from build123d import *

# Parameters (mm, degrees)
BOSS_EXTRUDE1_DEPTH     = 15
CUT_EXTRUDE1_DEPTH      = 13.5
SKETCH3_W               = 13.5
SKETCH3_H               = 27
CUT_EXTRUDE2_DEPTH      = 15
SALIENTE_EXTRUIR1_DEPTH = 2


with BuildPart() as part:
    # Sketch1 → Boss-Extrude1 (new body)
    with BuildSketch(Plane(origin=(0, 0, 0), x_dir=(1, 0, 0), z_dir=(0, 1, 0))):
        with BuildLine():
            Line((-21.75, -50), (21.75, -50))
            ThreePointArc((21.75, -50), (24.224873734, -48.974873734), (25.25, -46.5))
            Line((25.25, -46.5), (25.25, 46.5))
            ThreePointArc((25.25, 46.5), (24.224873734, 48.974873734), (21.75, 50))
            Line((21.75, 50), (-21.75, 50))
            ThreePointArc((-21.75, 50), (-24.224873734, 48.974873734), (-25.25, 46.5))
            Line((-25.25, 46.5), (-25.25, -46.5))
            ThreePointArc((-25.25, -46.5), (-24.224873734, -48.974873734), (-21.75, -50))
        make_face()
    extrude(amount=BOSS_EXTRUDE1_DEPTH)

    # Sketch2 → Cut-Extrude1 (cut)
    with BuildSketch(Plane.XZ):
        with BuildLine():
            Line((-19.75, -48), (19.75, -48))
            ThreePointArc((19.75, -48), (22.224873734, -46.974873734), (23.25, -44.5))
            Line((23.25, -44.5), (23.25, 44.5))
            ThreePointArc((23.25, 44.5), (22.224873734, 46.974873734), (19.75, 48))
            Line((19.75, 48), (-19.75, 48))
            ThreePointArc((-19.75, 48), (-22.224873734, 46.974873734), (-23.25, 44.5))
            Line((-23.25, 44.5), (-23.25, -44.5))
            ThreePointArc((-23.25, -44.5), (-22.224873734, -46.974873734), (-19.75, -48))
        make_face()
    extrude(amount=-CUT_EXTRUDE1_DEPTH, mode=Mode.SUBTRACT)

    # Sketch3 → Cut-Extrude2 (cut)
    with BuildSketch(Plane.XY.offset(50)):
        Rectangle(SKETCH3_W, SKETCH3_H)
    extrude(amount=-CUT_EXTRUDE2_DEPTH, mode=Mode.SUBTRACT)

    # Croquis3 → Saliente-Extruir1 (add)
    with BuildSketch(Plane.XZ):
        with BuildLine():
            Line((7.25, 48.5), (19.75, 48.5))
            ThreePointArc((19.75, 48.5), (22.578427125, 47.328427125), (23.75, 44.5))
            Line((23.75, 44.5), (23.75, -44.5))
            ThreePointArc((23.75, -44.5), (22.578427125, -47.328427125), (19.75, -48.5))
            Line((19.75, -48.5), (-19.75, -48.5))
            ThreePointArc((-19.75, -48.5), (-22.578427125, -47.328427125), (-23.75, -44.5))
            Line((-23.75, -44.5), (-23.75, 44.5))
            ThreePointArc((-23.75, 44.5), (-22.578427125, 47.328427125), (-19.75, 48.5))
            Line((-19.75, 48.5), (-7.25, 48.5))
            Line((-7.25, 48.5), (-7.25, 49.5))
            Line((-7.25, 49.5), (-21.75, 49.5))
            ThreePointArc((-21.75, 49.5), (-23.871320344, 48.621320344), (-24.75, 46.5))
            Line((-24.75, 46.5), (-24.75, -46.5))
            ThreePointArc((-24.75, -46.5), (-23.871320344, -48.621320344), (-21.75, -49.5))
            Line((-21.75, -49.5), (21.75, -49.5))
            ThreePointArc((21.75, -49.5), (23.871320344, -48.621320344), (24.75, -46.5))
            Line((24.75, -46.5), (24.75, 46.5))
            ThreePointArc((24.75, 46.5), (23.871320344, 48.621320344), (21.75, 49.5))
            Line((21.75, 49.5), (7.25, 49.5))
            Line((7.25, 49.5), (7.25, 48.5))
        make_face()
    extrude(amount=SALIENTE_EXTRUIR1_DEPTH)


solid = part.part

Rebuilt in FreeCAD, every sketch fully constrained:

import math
import FreeCAD as App
import Part
import Sketcher
from FreeCAD import Vector
Q = App.Units.Quantity


def add_polygon(sketch, points):
    """Adds a closed chain of lines whose ends are joined by coincident constraints."""
    first, n = sketch.GeometryCount, len(points)
    for a, b in zip(points, points[1:] + points[:1]):
        sketch.addGeometry(Part.LineSegment(App.Vector(*a, 0), App.Vector(*b, 0)), False)
    for i in range(n):
        sketch.addConstraint(Sketcher.Constraint("Coincident", first + i, 2, first + (i + 1) % n, 1))

doc = App.newDocument("Part")
params = doc.addObject("Spreadsheet::Sheet", "Params")
for row, (alias, value) in enumerate([
    ("sketch1_radius", "3.5 mm"),
    ("sketch1_height", "93 mm"),
    ("sketch1_width", "43.5 mm"),
    ("pad1_length", "15 mm"),
    ("sketch2_radius", "3.5 mm"),
    ("sketch2_height", "89 mm"),
    ("sketch2_width", "39.5 mm"),
    ("pocket1_length", "13.5 mm"),
    ("sketch3_height", "27 mm"),
    ("sketch3_width", "13.5 mm"),
    ("pocket2_length", "15 mm"),
    ("sketch4_radius", "4 mm"),
    ("sketch4_radius2", "3 mm"),
    ("sketch4_height", "89 mm"),
    ("sketch4_height2", "1 mm"),
    ("sketch4_width", "12.5 mm"),
    ("pad2_length", "2 mm"),
], start=1):
    params.set(f"A{row}", alias)
    params.set(f"B{row}", "=" + value)
    params.setAlias(f"B{row}", alias)

body = doc.addObject("PartDesign::Body", "Body")

sketch1 = doc.addObject("Sketcher::SketchObject", "Sketch")
body.addObject(sketch1)
sketch1.AttachmentSupport = (doc.XZ_Plane, [""])
sketch1.MapMode = "FlatFace"
sketch1.addGeometry(Part.LineSegment(Vector(-21.8, 50, 0), Vector(21.8, 50, 0)), False)
sketch1.addGeometry(Part.ArcOfCircle(Part.Circle(Vector(21.7, 46.5, 0), Vector(0, 0, 1), 3.5), math.radians(0), math.radians(90)), False)
sketch1.addGeometry(Part.LineSegment(Vector(25.2, 46.5, 0), Vector(25.2, -46.5, 0)), False)
sketch1.addGeometry(Part.ArcOfCircle(Part.Circle(Vector(21.7, -46.5, 0), Vector(0, 0, 1), 3.5), math.radians(-90), math.radians(0)), False)
sketch1.addGeometry(Part.LineSegment(Vector(21.8, -50, 0), Vector(-21.8, -50, 0)), False)
sketch1.addGeometry(Part.ArcOfCircle(Part.Circle(Vector(-21.7, -46.5, 0), Vector(0, 0, 1), 3.5), math.radians(-180), math.radians(-90)), False)
sketch1.addGeometry(Part.LineSegment(Vector(-25.2, -46.5, 0), Vector(-25.2, 46.5, 0)), False)
sketch1.addGeometry(Part.ArcOfCircle(Part.Circle(Vector(-21.7, 46.5, 0), Vector(0, 0, 1), 3.5), math.radians(90), math.radians(180)), False)
sketch1.addConstraint(Sketcher.Constraint("Tangent", 0, 2, 1, 2))
sketch1.addConstraint(Sketcher.Constraint("Tangent", 1, 1, 2, 1))
sketch1.addConstraint(Sketcher.Constraint("Tangent", 2, 2, 3, 2))
sketch1.addConstraint(Sketcher.Constraint("Tangent", 3, 1, 4, 1))
sketch1.addConstraint(Sketcher.Constraint("Tangent", 4, 2, 5, 2))
sketch1.addConstraint(Sketcher.Constraint("Tangent", 5, 1, 6, 1))
sketch1.addConstraint(Sketcher.Constraint("Tangent", 6, 2, 7, 2))
sketch1.addConstraint(Sketcher.Constraint("Tangent", 7, 1, 0, 1))
sketch1.addConstraint(Sketcher.Constraint("Horizontal", 0))
sketch1.addConstraint(Sketcher.Constraint("Vertical", 2))
sketch1.addConstraint(Sketcher.Constraint("Horizontal", 4))
sketch1.addConstraint(Sketcher.Constraint("Vertical", 6))
sketch1.addConstraint(Sketcher.Constraint("Equal", 1, 3))
sketch1.addConstraint(Sketcher.Constraint("Equal", 3, 5))
sketch1.addConstraint(Sketcher.Constraint("Equal", 5, 7))
sketch1.addConstraint(Sketcher.Constraint("Symmetric", 1, 3, 5, 3, -1, 1))
sketch1.addConstraint(Sketcher.Constraint("Radius", 1, Q("3.5 mm")))
sketch1.addConstraint(Sketcher.Constraint("DistanceY", 2, 2, 2, 1, Q("93 mm")))
sketch1.addConstraint(Sketcher.Constraint("DistanceX", 0, 1, 0, 2, Q("43.5 mm")))
sketch1.setExpression("Constraints[16]", "Params.sketch1_radius")
sketch1.setExpression("Constraints[17]", "Params.sketch1_height")
sketch1.setExpression("Constraints[18]", "Params.sketch1_width")
pad1 = doc.addObject("PartDesign::Pad", "Pad")
body.addObject(pad1)
pad1.Profile = sketch1
pad1.setExpression("Length", "Params.pad1_length")
pad1.Reversed = True

sketch2 = doc.addObject("Sketcher::SketchObject", "Sketch001")
body.addObject(sketch2)
sketch2.AttachmentSupport = (doc.XZ_Plane, [""])
sketch2.MapMode = "FlatFace"
sketch2.addGeometry(Part.LineSegment(Vector(-19.8, -48, 0), Vector(19.8, -48, 0)), False)
sketch2.addGeometry(Part.ArcOfCircle(Part.Circle(Vector(19.7, -44.5, 0), Vector(0, 0, 1), 3.5), math.radians(-90), math.radians(0)), False)
sketch2.addGeometry(Part.LineSegment(Vector(23.2, -44.5, 0), Vector(23.2, 44.5, 0)), False)
sketch2.addGeometry(Part.ArcOfCircle(Part.Circle(Vector(19.7, 44.5, 0), Vector(0, 0, 1), 3.5), math.radians(0), math.radians(90)), False)
sketch2.addGeometry(Part.LineSegment(Vector(19.8, 48, 0), Vector(-19.8, 48, 0)), False)
sketch2.addGeometry(Part.ArcOfCircle(Part.Circle(Vector(-19.7, 44.5, 0), Vector(0, 0, 1), 3.5), math.radians(90), math.radians(180)), False)
sketch2.addGeometry(Part.LineSegment(Vector(-23.2, 44.5, 0), Vector(-23.2, -44.5, 0)), False)
sketch2.addGeometry(Part.ArcOfCircle(Part.Circle(Vector(-19.7, -44.5, 0), Vector(0, 0, 1), 3.5), math.radians(-180), math.radians(-90)), False)
sketch2.addConstraint(Sketcher.Constraint("Tangent", 0, 2, 1, 1))
sketch2.addConstraint(Sketcher.Constraint("Tangent", 1, 2, 2, 1))
sketch2.addConstraint(Sketcher.Constraint("Tangent", 2, 2, 3, 1))
sketch2.addConstraint(Sketcher.Constraint("Tangent", 3, 2, 4, 1))
sketch2.addConstraint(Sketcher.Constraint("Tangent", 4, 2, 5, 1))
sketch2.addConstraint(Sketcher.Constraint("Tangent", 5, 2, 6, 1))
sketch2.addConstraint(Sketcher.Constraint("Tangent", 6, 2, 7, 1))
sketch2.addConstraint(Sketcher.Constraint("Tangent", 7, 2, 0, 1))
sketch2.addConstraint(Sketcher.Constraint("Horizontal", 0))
sketch2.addConstraint(Sketcher.Constraint("Vertical", 2))
sketch2.addConstraint(Sketcher.Constraint("Horizontal", 4))
sketch2.addConstraint(Sketcher.Constraint("Vertical", 6))
sketch2.addConstraint(Sketcher.Constraint("Equal", 1, 3))
sketch2.addConstraint(Sketcher.Constraint("Equal", 3, 5))
sketch2.addConstraint(Sketcher.Constraint("Equal", 5, 7))
sketch2.addConstraint(Sketcher.Constraint("Symmetric", 1, 3, 5, 3, -1, 1))
sketch2.addConstraint(Sketcher.Constraint("Radius", 1, Q("3.5 mm")))
sketch2.addConstraint(Sketcher.Constraint("DistanceY", 2, 1, 2, 2, Q("89 mm")))
sketch2.addConstraint(Sketcher.Constraint("DistanceX", 0, 1, 0, 2, Q("39.5 mm")))
sketch2.setExpression("Constraints[16]", "Params.sketch2_radius")
sketch2.setExpression("Constraints[17]", "Params.sketch2_height")
sketch2.setExpression("Constraints[18]", "Params.sketch2_width")
pocket1 = doc.addObject("PartDesign::Pocket", "Pocket")
body.addObject(pocket1)
pocket1.Profile = sketch2
pocket1.setExpression("Length", "Params.pocket1_length")

sketch3 = doc.addObject("Sketcher::SketchObject", "Sketch002")
body.addObject(sketch3)
sketch3.AttachmentSupport = (doc.XY_Plane, [""])
sketch3.MapMode = "FlatFace"
sketch3.AttachmentOffset = App.Placement(Vector(0, 0, 50), App.Rotation())
add_polygon(sketch3, [(-7, 14), (-7, -14), (7, -14), (7, 14)])
sketch3.addConstraint(Sketcher.Constraint("Vertical", 0))
sketch3.addConstraint(Sketcher.Constraint("Horizontal", 1))
sketch3.addConstraint(Sketcher.Constraint("Vertical", 2))
sketch3.addConstraint(Sketcher.Constraint("Horizontal", 3))
sketch3.addConstraint(Sketcher.Constraint("Symmetric", 0, 2, 2, 2, -1, 1))
sketch3.addConstraint(Sketcher.Constraint("DistanceY", 0, 2, 0, 1, Q("27 mm")))
sketch3.addConstraint(Sketcher.Constraint("DistanceX", 1, 1, 1, 2, Q("13.5 mm")))
sketch3.setExpression("Constraints[9]", "Params.sketch3_height")
sketch3.setExpression("Constraints[10]", "Params.sketch3_width")
pocket2 = doc.addObject("PartDesign::Pocket", "Pocket001")
body.addObject(pocket2)
pocket2.Profile = sketch3
pocket2.setExpression("Length", "Params.pocket2_length")

sketch4 = doc.addObject("Sketcher::SketchObject", "Sketch003")
body.addObject(sketch4)
sketch4.AttachmentSupport = (doc.XZ_Plane, [""])
sketch4.MapMode = "FlatFace"
sketch4.addGeometry(Part.LineSegment(Vector(7.2, 48.5, 0), Vector(19.8, 48.5, 0)), False)
sketch4.addGeometry(Part.ArcOfCircle(Part.Circle(Vector(19.8, 44.5, 0), Vector(0, 0, 1), 4), math.radians(0), math.radians(90)), False)
sketch4.addGeometry(Part.LineSegment(Vector(23.8, 44.5, 0), Vector(23.8, -44.5, 0)), False)
sketch4.addGeometry(Part.ArcOfCircle(Part.Circle(Vector(19.8, -44.5, 0), Vector(0, 0, 1), 4), math.radians(-90), math.radians(0)), False)
sketch4.addGeometry(Part.LineSegment(Vector(19.8, -48.5, 0), Vector(-19.8, -48.5, 0)), False)
sketch4.addGeometry(Part.ArcOfCircle(Part.Circle(Vector(-19.8, -44.5, 0), Vector(0, 0, 1), 4), math.radians(180), math.radians(270)), False)
sketch4.addGeometry(Part.LineSegment(Vector(-23.8, -44.5, 0), Vector(-23.8, 44.5, 0)), False)
sketch4.addGeometry(Part.ArcOfCircle(Part.Circle(Vector(-19.8, 44.5, 0), Vector(0, 0, 1), 4), math.radians(90), math.radians(180)), False)
sketch4.addGeometry(Part.LineSegment(Vector(-19.8, 48.5, 0), Vector(-7.2, 48.5, 0)), False)
sketch4.addGeometry(Part.LineSegment(Vector(-7.2, 48.5, 0), Vector(-7.2, 49.5, 0)), False)
sketch4.addGeometry(Part.LineSegment(Vector(-7.2, 49.5, 0), Vector(-21.8, 49.5, 0)), False)
sketch4.addGeometry(Part.ArcOfCircle(Part.Circle(Vector(-21.8, 46.5, 0), Vector(0, 0, 1), 3), math.radians(90), math.radians(180)), False)
sketch4.addGeometry(Part.LineSegment(Vector(-24.8, 46.5, 0), Vector(-24.8, -46.5, 0)), False)
sketch4.addGeometry(Part.ArcOfCircle(Part.Circle(Vector(-21.8, -46.5, 0), Vector(0, 0, 1), 3), math.radians(180), math.radians(270)), False)
sketch4.addGeometry(Part.LineSegment(Vector(-21.8, -49.5, 0), Vector(21.8, -49.5, 0)), False)
sketch4.addGeometry(Part.ArcOfCircle(Part.Circle(Vector(21.8, -46.5, 0), Vector(0, 0, 1), 3), math.radians(-90), math.radians(0)), False)
sketch4.addGeometry(Part.LineSegment(Vector(24.8, -46.5, 0), Vector(24.8, 46.5, 0)), False)
sketch4.addGeometry(Part.ArcOfCircle(Part.Circle(Vector(21.8, 46.5, 0), Vector(0, 0, 1), 3), math.radians(0), math.radians(90)), False)
sketch4.addGeometry(Part.LineSegment(Vector(21.8, 49.5, 0), Vector(7.2, 49.5, 0)), False)
sketch4.addGeometry(Part.LineSegment(Vector(7.2, 49.5, 0), Vector(7.2, 48.5, 0)), False)
sketch4.addConstraint(Sketcher.Constraint("Tangent", 0, 2, 1, 2))
sketch4.addConstraint(Sketcher.Constraint("Tangent", 1, 1, 2, 1))
sketch4.addConstraint(Sketcher.Constraint("Tangent", 2, 2, 3, 2))
sketch4.addConstraint(Sketcher.Constraint("Tangent", 3, 1, 4, 1))
sketch4.addConstraint(Sketcher.Constraint("Tangent", 4, 2, 5, 2))
sketch4.addConstraint(Sketcher.Constraint("Tangent", 5, 1, 6, 1))
sketch4.addConstraint(Sketcher.Constraint("Tangent", 6, 2, 7, 2))
sketch4.addConstraint(Sketcher.Constraint("Tangent", 7, 1, 8, 1))
sketch4.addConstraint(Sketcher.Constraint("Coincident", 8, 2, 9, 1))
sketch4.addConstraint(Sketcher.Constraint("Coincident", 9, 2, 10, 1))
sketch4.addConstraint(Sketcher.Constraint("Tangent", 10, 2, 11, 1))
sketch4.addConstraint(Sketcher.Constraint("Tangent", 11, 2, 12, 1))
sketch4.addConstraint(Sketcher.Constraint("Tangent", 12, 2, 13, 1))
sketch4.addConstraint(Sketcher.Constraint("Tangent", 13, 2, 14, 1))
sketch4.addConstraint(Sketcher.Constraint("Tangent", 14, 2, 15, 1))
sketch4.addConstraint(Sketcher.Constraint("Tangent", 15, 2, 16, 1))
sketch4.addConstraint(Sketcher.Constraint("Tangent", 16, 2, 17, 1))
sketch4.addConstraint(Sketcher.Constraint("Tangent", 17, 2, 18, 1))
sketch4.addConstraint(Sketcher.Constraint("Coincident", 18, 2, 19, 1))
sketch4.addConstraint(Sketcher.Constraint("Coincident", 19, 2, 0, 1))
sketch4.addConstraint(Sketcher.Constraint("Horizontal", 0))
sketch4.addConstraint(Sketcher.Constraint("Vertical", 2))
sketch4.addConstraint(Sketcher.Constraint("Horizontal", 4))
sketch4.addConstraint(Sketcher.Constraint("Vertical", 6))
sketch4.addConstraint(Sketcher.Constraint("Horizontal", 8))
sketch4.addConstraint(Sketcher.Constraint("Vertical", 9))
sketch4.addConstraint(Sketcher.Constraint("Horizontal", 10))
sketch4.addConstraint(Sketcher.Constraint("Vertical", 12))
sketch4.addConstraint(Sketcher.Constraint("Horizontal", 14))
sketch4.addConstraint(Sketcher.Constraint("Vertical", 16))
sketch4.addConstraint(Sketcher.Constraint("Horizontal", 18))
sketch4.addConstraint(Sketcher.Constraint("Vertical", 19))
sketch4.addConstraint(Sketcher.Constraint("Equal", 1, 3))
sketch4.addConstraint(Sketcher.Constraint("Equal", 3, 5))
sketch4.addConstraint(Sketcher.Constraint("Equal", 5, 7))
sketch4.addConstraint(Sketcher.Constraint("Equal", 11, 13))
sketch4.addConstraint(Sketcher.Constraint("Equal", 13, 15))
sketch4.addConstraint(Sketcher.Constraint("Equal", 15, 17))
sketch4.addConstraint(Sketcher.Constraint("Symmetric", 1, 3, 5, 3, -1, 1))
sketch4.addConstraint(Sketcher.Constraint("Symmetric", 11, 3, 15, 3, -1, 1))
sketch4.addConstraint(Sketcher.Constraint("Symmetric", 9, 2, 18, 2, -2))
sketch4.addConstraint(Sketcher.Constraint("Horizontal", 1, 3, 7, 3))
sketch4.addConstraint(Sketcher.Constraint("Radius", 1, Q("4 mm")))
sketch4.addConstraint(Sketcher.Constraint("Radius", 11, Q("3 mm")))
sketch4.addConstraint(Sketcher.Constraint("DistanceY", 2, 2, 2, 1, Q("89 mm")))
sketch4.addConstraint(Sketcher.Constraint("DistanceY", 9, 1, 9, 2, Q("1 mm")))
sketch4.addConstraint(Sketcher.Constraint("DistanceX", 0, 1, 0, 2, Q("12.5 mm")))
sketch4.addConstraint(Sketcher.Constraint("DistanceX", 4, 2, 4, 1, Q("39.5 mm")))
sketch4.addConstraint(Sketcher.Constraint("DistanceX", 10, 2, 10, 1, Q("14.5 mm")))
sketch4.setExpression("Constraints[42]", "Params.sketch4_radius")
sketch4.setExpression("Constraints[43]", "Params.sketch4_radius2")
sketch4.setExpression("Constraints[44]", "Params.sketch4_height")
sketch4.setExpression("Constraints[45]", "Params.sketch4_height2")
sketch4.setExpression("Constraints[46]", "Params.sketch4_width")
pad2 = doc.addObject("PartDesign::Pad", "Pad001")
body.addObject(pad2)
pad2.Profile = sketch4
pad2.setExpression("Length", "Params.pad2_length")

doc.recompute()
